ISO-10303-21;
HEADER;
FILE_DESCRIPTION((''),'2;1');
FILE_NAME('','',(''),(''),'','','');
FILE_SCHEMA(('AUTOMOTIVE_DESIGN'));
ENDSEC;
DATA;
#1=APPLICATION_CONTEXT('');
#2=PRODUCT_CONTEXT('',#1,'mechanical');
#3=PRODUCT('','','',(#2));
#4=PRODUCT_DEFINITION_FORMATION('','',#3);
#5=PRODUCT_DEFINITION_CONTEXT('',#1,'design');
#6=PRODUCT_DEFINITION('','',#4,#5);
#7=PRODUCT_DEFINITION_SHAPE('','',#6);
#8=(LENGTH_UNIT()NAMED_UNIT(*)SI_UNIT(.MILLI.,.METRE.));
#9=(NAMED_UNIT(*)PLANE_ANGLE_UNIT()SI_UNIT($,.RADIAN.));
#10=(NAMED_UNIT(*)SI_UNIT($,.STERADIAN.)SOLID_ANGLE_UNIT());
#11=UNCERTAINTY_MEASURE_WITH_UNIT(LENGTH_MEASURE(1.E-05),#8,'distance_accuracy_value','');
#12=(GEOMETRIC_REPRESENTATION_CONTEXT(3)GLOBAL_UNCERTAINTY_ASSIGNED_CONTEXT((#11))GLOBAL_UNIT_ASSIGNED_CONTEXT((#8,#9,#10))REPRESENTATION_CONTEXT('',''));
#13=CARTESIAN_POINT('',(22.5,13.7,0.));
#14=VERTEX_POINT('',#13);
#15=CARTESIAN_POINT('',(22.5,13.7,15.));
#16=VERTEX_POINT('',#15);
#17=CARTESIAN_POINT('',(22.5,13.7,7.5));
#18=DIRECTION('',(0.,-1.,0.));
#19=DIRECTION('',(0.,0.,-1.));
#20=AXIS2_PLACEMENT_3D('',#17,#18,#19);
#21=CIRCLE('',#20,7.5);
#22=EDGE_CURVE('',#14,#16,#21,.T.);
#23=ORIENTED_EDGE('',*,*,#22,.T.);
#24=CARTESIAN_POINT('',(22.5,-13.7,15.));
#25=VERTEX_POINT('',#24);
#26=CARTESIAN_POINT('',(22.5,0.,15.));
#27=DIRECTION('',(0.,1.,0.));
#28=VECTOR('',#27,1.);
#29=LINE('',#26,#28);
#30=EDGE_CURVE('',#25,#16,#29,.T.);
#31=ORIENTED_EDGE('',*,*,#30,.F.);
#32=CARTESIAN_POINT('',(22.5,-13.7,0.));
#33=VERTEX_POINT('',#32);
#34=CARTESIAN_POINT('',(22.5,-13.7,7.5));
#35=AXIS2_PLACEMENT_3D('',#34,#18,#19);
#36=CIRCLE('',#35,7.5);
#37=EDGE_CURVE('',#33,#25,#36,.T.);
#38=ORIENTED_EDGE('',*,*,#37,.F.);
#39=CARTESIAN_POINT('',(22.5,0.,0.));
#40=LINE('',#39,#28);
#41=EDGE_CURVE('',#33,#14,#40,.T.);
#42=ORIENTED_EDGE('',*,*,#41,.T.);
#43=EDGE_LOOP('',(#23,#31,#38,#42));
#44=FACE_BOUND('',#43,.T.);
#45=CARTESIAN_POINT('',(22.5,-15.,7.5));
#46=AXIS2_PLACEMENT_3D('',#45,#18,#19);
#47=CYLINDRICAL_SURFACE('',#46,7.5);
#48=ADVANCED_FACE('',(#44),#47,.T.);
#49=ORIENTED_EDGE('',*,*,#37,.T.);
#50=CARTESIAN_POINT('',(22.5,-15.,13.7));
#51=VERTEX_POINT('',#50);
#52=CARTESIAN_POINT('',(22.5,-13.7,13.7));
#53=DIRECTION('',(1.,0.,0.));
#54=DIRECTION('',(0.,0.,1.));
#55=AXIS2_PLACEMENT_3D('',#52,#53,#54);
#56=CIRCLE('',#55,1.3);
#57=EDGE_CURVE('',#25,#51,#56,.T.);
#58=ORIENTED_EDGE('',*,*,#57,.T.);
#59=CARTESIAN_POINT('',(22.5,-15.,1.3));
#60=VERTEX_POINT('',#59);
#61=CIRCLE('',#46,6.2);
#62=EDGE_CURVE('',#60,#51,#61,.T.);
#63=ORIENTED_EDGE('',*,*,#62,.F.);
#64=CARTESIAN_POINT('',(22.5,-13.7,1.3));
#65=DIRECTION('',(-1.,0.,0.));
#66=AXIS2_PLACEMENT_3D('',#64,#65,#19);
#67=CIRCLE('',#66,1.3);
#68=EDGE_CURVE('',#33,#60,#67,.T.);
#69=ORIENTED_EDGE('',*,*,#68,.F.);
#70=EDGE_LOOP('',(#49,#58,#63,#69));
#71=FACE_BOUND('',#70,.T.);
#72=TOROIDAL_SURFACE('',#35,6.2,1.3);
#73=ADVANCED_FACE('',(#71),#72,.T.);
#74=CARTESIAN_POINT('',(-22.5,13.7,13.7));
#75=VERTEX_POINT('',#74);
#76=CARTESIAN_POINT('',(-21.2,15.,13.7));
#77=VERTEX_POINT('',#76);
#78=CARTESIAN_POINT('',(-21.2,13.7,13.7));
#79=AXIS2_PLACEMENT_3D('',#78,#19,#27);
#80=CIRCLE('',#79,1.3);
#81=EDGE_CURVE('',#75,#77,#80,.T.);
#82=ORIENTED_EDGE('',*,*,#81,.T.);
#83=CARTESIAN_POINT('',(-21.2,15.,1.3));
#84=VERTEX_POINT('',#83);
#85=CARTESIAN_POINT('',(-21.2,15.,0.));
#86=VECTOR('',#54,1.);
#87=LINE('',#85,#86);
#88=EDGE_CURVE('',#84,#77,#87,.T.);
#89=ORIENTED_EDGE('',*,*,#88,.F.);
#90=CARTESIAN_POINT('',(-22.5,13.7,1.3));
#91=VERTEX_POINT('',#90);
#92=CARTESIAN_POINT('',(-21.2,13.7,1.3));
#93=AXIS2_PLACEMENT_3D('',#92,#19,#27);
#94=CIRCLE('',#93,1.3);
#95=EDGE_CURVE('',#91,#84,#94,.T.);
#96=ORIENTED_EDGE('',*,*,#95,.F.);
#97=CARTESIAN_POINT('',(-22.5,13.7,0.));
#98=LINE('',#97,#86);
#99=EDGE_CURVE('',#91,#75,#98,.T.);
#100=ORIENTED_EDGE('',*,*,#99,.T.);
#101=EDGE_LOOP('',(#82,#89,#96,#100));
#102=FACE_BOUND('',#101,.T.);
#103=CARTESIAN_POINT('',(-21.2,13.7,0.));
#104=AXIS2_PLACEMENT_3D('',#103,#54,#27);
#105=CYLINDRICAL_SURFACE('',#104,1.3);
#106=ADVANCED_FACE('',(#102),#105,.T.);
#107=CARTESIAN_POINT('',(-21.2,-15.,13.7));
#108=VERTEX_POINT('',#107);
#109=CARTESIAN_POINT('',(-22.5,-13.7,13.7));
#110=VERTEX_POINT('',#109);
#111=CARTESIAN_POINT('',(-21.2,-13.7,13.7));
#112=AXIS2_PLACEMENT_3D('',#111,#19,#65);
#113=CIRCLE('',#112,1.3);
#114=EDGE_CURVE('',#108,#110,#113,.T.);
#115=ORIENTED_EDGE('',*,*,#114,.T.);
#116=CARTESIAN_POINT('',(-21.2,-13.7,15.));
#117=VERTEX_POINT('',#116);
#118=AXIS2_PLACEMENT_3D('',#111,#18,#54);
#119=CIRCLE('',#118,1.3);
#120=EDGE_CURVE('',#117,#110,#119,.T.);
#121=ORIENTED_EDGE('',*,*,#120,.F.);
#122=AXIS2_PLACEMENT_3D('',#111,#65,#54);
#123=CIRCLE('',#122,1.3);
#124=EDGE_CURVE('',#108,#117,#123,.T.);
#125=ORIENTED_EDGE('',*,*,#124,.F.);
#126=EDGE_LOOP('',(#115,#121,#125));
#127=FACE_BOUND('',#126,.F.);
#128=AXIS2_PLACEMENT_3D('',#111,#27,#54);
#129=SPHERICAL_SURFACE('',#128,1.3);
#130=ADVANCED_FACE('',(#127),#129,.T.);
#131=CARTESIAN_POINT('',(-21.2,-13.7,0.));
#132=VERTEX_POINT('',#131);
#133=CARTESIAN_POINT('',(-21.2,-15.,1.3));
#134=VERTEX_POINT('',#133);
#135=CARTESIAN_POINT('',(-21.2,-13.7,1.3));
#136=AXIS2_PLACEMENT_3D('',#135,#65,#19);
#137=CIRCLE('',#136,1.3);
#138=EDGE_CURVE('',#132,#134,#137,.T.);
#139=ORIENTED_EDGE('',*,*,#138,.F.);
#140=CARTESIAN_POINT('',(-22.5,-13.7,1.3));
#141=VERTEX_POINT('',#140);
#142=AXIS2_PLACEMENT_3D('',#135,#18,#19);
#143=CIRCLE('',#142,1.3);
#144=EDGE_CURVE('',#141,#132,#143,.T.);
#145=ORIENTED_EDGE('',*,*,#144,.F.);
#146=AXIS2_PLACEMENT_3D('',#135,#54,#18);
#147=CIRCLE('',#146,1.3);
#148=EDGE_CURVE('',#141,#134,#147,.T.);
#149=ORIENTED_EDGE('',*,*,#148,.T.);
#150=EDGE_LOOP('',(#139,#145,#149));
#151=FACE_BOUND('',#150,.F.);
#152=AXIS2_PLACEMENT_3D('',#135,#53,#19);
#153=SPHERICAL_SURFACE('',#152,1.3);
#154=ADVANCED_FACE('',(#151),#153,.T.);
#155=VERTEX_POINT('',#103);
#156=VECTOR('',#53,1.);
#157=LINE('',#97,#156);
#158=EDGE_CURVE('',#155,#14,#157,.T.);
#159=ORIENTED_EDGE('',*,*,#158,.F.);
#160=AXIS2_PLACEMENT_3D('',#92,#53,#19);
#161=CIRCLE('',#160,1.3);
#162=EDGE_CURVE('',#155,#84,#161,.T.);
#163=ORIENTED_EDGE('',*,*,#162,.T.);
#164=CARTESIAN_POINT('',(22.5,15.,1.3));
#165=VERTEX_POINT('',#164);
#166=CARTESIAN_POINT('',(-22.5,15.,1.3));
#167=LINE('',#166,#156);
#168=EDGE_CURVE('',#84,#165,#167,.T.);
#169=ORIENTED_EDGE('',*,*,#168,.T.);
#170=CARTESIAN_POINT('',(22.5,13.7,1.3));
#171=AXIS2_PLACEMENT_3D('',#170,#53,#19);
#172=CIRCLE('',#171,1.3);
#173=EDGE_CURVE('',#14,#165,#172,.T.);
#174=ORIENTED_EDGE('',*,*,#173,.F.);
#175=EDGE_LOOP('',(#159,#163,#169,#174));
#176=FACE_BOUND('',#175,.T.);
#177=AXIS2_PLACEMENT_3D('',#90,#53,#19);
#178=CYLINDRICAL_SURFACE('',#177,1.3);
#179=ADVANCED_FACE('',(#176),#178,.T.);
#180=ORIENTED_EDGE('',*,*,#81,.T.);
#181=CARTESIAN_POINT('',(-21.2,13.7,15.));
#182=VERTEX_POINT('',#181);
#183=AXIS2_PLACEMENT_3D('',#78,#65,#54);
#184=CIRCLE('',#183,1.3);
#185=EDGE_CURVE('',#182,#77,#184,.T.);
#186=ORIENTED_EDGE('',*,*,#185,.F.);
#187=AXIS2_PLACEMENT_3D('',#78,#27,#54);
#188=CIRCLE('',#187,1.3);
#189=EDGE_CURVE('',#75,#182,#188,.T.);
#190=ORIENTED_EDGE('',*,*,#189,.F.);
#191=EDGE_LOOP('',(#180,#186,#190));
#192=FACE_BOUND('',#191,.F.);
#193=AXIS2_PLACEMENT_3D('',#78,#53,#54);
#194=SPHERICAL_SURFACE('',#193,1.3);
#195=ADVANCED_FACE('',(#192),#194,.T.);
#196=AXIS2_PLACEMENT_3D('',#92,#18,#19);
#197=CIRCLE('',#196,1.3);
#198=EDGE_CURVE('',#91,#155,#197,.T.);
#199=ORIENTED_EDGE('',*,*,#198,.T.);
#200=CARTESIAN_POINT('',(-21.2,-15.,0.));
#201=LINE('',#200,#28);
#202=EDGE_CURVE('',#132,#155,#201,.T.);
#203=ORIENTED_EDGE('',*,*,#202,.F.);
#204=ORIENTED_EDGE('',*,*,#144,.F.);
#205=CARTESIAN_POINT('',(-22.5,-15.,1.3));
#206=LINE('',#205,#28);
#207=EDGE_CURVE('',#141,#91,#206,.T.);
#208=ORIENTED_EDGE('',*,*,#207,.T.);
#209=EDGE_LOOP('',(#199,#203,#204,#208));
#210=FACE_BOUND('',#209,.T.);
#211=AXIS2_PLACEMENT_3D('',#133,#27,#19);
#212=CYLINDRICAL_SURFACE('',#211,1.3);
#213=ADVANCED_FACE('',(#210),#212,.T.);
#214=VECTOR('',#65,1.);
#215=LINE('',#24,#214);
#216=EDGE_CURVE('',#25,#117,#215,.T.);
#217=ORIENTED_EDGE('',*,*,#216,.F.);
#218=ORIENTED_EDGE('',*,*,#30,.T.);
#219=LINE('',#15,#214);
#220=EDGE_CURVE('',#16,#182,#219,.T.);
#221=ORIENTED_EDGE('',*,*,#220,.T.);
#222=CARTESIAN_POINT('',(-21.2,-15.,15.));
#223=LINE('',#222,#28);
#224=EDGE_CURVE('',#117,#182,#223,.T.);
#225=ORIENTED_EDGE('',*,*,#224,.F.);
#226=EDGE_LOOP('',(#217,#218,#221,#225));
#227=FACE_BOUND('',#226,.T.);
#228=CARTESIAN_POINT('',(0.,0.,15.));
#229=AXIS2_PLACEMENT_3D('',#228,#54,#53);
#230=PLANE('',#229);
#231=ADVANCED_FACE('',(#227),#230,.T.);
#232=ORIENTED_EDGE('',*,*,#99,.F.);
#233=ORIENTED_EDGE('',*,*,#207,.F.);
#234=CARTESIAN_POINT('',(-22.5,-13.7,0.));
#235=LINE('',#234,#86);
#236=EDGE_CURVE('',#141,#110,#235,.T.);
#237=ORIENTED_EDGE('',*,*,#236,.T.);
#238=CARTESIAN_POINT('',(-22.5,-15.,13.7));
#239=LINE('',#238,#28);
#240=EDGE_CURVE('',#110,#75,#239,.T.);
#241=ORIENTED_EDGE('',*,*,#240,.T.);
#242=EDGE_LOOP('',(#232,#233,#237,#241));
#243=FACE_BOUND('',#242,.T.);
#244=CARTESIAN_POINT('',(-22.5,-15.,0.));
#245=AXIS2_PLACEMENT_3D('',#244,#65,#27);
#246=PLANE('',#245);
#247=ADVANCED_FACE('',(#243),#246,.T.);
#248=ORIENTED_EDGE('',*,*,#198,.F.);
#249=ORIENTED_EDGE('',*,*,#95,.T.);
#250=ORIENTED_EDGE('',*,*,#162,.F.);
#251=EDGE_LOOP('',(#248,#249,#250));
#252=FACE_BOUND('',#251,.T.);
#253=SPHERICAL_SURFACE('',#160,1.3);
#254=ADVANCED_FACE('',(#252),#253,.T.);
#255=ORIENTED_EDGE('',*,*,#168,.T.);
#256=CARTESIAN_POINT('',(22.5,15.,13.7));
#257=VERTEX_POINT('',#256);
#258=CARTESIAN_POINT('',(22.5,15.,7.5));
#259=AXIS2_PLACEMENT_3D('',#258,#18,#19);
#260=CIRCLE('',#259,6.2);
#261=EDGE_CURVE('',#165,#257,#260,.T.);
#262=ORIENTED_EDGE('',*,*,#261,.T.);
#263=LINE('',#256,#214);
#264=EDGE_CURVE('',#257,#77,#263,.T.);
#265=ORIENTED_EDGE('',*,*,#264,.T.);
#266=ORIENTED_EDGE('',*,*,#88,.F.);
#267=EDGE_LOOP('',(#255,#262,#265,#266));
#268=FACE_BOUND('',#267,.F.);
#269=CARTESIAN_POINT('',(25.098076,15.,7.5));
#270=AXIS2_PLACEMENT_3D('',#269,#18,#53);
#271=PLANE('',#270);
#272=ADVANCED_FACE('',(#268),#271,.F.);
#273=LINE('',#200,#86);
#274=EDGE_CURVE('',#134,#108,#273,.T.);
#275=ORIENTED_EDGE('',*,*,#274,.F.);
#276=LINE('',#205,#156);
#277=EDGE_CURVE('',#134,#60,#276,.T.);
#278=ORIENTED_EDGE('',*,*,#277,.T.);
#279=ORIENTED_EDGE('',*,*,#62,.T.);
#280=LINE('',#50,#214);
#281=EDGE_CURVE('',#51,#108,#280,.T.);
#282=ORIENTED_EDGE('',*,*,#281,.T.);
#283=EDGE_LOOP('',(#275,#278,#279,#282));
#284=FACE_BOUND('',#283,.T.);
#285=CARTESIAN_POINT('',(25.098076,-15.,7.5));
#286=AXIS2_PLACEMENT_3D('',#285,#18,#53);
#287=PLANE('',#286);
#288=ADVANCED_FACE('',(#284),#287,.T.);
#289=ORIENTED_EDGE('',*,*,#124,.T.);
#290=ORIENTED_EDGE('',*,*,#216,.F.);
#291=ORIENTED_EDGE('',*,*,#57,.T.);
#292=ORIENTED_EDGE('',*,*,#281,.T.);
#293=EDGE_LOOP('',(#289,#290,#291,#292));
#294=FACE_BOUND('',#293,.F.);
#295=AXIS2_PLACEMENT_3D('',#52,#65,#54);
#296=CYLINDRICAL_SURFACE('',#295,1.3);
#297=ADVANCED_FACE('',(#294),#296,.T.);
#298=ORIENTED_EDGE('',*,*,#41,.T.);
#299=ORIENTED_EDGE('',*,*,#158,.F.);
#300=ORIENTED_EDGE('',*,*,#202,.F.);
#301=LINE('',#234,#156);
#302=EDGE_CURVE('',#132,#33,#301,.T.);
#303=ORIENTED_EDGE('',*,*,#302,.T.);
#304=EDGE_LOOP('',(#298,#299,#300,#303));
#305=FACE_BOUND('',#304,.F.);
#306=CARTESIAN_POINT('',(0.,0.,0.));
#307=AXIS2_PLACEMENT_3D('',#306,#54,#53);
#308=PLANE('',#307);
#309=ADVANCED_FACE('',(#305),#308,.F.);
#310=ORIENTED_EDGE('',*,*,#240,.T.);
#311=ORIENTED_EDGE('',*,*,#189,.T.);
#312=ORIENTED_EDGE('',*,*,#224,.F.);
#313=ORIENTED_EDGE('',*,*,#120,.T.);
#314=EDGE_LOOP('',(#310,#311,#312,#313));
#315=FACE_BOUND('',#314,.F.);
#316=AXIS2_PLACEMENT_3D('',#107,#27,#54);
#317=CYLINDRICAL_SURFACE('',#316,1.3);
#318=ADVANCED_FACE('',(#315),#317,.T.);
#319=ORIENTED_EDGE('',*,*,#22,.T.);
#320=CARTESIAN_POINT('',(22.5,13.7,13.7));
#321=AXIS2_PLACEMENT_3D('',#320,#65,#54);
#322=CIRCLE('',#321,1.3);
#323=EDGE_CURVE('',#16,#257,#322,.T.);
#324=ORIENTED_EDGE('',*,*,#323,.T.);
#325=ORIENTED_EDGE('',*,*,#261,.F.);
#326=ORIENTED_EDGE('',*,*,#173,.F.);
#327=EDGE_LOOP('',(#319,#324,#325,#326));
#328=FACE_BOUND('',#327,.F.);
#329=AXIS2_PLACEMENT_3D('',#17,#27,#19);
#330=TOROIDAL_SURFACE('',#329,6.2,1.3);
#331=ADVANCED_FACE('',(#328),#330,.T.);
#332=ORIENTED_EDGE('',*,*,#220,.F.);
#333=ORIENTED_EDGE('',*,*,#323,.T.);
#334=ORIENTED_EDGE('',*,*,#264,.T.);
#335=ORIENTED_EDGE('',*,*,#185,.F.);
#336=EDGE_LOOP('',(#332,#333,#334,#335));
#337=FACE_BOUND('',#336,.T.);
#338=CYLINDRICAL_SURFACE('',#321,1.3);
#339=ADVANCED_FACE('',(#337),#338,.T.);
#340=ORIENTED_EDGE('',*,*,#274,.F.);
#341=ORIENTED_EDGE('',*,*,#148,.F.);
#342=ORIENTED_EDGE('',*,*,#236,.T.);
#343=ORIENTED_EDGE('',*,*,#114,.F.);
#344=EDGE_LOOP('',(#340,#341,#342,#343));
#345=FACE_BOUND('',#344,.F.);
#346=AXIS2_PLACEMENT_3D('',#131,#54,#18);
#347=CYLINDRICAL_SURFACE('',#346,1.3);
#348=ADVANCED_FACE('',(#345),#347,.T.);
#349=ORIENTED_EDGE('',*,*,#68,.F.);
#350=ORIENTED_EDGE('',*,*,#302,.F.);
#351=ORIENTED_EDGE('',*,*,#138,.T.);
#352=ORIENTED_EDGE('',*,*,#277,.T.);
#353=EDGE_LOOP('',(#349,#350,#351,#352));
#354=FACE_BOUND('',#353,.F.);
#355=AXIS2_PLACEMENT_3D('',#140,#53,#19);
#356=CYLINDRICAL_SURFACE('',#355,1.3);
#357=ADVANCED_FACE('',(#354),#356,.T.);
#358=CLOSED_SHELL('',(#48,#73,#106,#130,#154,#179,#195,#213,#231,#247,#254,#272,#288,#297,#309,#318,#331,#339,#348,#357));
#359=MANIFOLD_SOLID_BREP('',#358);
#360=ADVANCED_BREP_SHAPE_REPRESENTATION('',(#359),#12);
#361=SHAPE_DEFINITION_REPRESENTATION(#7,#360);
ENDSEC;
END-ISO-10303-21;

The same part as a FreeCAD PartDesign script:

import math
import FreeCAD as App
import Part
import Sketcher
from FreeCAD import Vector
Q = App.Units.Quantity


def add_polygon(sketch, points):
    """Adds a closed chain of lines whose ends are joined by coincident constraints."""
    first, n = sketch.GeometryCount, len(points)
    for a, b in zip(points, points[1:] + points[:1]):
        sketch.addGeometry(Part.LineSegment(App.Vector(*a, 0), App.Vector(*b, 0)), False)
    for i in range(n):
        sketch.addConstraint(Sketcher.Constraint("Coincident", first + i, 2, first + (i + 1) % n, 1))

doc = App.newDocument("Part")
body = doc.addObject("PartDesign::Body", "Body")

# Sketch on XY plane
sketch1 = body.newObject("Sketcher::SketchObject", "Sketch")
sketch1.AttachmentSupport = (doc.getObject("XY_Plane"), [""])
sketch1.MapMode = "FlatFace"
add_polygon(sketch1, [(-22, 15), (-22, -15), (22, -15), (22, 15)])  # lines 0-3
sketch1.addConstraint(Sketcher.Constraint("Vertical", 0))
sketch1.addConstraint(Sketcher.Constraint("Horizontal", 1))
sketch1.addConstraint(Sketcher.Constraint("Vertical", 2))
sketch1.addConstraint(Sketcher.Constraint("Horizontal", 3))
sketch1.addConstraint(Sketcher.Constraint("Symmetric", 0, 2, 2, 2, -1, 1))
sketch1.addConstraint(Sketcher.Constraint("DistanceX", 1, 1, 1, 2, Q("45 mm")))
sketch1.addConstraint(Sketcher.Constraint("DistanceY", 0, 2, 0, 1, Q("30 mm")))
pad1 = body.newObject("PartDesign::Pad", "Pad")
pad1.Profile = sketch1
pad1.Length = 15

# Sketch on XZ plane
sketch2 = body.newObject("Sketcher::SketchObject", "Sketch001")
sketch2.AttachmentSupport = (doc.getObject("XZ_Plane"), [""])
sketch2.MapMode = "FlatFace"
sketch2.AttachmentOffset = App.Placement(Vector(0, 0, 15), App.Rotation())
sketch2.addGeometry(Part.LineSegment(Vector(22, 15, 0), Vector(22, 0, 0)), False)
sketch2.addGeometry(Part.ArcOfCircle(Part.Circle(Vector(22, 8, 0), Vector(0, 0, 1), 8), math.radians(-90), math.radians(90)), False)
sketch2.addConstraint(Sketcher.Constraint("Coincident", 0, 1, 1, 2))
sketch2.addConstraint(Sketcher.Constraint("Coincident", 1, 1, 0, 2))
sketch2.addConstraint(Sketcher.Constraint("Vertical", 0))
sketch2.addConstraint(Sketcher.Constraint("PointOnObject", 1, 1, -1))
sketch2.addConstraint(Sketcher.Constraint("Vertical", 1, 3, 0, 1))
sketch2.addConstraint(Sketcher.Constraint("Radius", 1, Q("7.5 mm")))
sketch2.addConstraint(Sketcher.Constraint("DistanceX", -1, 1, 1, 3, Q("22.5 mm")))
pad2 = body.newObject("PartDesign::Pad", "Pad001")
pad2.Profile = sketch2
pad2.Length = 30
pad2.Reversed = True
doc.recompute()

fillet = body.newObject("PartDesign::Fillet", "Fillet")
fillet.Base = (pad2, ["Edge1"])
fillet.UseAllEdges = True
fillet.Radius = 1.3

doc.recompute()
